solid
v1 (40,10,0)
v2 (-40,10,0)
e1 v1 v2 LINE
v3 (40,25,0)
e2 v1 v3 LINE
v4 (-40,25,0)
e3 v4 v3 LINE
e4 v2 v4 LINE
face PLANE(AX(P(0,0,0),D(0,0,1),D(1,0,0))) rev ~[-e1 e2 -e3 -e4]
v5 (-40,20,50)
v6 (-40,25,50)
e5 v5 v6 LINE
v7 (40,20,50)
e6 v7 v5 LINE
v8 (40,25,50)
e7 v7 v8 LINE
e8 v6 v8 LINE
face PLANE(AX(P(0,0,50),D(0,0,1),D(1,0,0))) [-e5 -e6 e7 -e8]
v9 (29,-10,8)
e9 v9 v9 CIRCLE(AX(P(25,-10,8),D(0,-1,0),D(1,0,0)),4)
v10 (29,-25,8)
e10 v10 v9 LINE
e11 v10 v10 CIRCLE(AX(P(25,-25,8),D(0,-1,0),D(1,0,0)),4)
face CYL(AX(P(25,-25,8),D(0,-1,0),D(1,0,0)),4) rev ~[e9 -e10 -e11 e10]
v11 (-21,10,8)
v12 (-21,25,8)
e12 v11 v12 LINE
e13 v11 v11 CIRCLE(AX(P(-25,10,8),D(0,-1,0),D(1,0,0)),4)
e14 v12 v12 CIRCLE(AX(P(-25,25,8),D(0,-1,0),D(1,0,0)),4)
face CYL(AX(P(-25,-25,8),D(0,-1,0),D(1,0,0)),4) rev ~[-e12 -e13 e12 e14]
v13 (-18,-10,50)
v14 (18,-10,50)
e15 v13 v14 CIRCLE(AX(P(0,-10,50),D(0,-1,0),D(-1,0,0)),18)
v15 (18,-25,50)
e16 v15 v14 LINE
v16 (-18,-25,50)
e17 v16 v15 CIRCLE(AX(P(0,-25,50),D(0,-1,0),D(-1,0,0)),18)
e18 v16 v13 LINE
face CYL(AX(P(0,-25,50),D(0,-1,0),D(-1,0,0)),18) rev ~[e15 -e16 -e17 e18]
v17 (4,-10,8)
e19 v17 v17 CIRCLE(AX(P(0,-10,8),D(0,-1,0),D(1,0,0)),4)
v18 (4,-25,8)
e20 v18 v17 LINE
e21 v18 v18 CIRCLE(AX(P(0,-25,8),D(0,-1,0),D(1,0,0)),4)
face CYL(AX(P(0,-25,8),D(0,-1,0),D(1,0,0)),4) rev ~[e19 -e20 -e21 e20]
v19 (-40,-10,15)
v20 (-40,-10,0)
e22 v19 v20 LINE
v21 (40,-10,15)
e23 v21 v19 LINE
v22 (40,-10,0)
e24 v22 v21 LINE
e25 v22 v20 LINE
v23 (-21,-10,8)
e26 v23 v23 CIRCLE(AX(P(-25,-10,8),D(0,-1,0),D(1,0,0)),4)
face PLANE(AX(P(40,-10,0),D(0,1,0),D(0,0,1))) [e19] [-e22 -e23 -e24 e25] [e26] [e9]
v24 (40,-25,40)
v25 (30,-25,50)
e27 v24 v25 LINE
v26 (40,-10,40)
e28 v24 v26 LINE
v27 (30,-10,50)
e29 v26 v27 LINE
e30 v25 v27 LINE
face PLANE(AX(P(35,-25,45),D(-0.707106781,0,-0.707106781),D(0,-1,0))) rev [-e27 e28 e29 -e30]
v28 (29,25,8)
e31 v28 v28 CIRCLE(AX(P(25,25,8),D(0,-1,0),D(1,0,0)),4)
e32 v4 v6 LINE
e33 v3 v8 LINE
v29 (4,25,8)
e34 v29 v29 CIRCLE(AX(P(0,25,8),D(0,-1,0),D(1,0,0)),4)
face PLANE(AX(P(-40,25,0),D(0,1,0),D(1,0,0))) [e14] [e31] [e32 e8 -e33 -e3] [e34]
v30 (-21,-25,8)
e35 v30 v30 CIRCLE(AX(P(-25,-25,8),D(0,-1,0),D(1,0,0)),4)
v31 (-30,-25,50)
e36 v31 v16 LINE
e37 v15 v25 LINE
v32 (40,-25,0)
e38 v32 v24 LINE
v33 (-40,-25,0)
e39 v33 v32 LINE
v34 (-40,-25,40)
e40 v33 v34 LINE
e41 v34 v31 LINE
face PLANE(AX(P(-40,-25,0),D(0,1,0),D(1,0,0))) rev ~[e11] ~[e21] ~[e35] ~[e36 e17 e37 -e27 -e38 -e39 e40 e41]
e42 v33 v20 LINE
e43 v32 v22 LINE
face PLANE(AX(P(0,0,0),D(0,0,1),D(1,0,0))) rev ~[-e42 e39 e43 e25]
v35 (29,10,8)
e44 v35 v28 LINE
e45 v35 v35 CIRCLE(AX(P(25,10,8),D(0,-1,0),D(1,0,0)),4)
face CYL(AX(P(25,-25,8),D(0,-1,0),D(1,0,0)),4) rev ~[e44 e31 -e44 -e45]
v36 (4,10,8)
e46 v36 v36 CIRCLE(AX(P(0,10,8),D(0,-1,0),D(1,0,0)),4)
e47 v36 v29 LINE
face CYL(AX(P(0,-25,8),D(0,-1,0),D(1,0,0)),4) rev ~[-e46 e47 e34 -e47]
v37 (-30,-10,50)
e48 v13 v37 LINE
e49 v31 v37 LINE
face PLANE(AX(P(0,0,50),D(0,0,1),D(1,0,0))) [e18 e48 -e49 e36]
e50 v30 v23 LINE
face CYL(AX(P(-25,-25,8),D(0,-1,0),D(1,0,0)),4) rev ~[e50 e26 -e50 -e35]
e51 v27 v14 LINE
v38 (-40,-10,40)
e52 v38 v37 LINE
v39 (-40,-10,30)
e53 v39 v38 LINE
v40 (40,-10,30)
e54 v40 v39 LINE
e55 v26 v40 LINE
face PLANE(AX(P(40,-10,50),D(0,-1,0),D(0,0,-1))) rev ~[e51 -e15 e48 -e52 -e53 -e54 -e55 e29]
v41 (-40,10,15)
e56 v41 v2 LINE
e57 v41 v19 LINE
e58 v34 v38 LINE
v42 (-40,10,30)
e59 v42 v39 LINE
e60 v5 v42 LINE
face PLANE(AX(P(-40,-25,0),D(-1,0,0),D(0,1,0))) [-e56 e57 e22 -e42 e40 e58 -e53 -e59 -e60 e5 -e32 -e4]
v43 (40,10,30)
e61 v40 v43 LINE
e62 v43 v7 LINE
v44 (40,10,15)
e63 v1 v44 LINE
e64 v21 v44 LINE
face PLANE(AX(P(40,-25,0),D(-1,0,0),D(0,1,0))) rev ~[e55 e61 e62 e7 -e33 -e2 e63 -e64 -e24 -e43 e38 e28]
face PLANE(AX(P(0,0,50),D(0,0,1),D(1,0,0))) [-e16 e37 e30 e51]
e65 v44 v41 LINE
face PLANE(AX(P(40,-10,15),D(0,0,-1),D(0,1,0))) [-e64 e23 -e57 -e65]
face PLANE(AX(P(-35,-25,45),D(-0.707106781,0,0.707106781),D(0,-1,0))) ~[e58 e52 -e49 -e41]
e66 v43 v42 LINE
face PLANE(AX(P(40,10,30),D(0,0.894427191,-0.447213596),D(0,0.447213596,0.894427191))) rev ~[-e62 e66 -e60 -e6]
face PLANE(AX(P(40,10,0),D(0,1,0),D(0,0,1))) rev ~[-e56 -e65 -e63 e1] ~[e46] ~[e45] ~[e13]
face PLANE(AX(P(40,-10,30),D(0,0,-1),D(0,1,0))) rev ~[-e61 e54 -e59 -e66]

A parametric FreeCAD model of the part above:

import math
import FreeCAD as App
import Part
import Sketcher


def edges_at(feature, points):
    """Names of the edges that pass closest to the given points."""
    edges = feature.Shape.Edges
    near = lambda p: min(range(len(edges)), key=lambda i: edges[i].distToShape(Part.Vertex(*p))[0])
    return sorted({f"Edge{near(p) + 1}" for p in points})

doc = App.newDocument("Part")
body = doc.addObject("PartDesign::Body", "Body")

sketch1 = body.newObject("Sketcher::SketchObject", "Sketch")
sketch1.AttachmentSupport = (doc.getObject("XY_Plane"), [""])
sketch1.MapMode = "FlatFace"
sketch1.addGeometry(Part.LineSegment(App.Vector(-40, 25, 0), App.Vector(-40, -25, 0)), False)
sketch1.addGeometry(Part.LineSegment(App.Vector(-40, -25, 0), App.Vector(40, -25, 0)), False)
sketch1.addGeometry(Part.LineSegment(App.Vector(40, -25, 0), App.Vector(40, 25, 0)), False)
sketch1.addGeometry(Part.LineSegment(App.Vector(40, 25, 0), App.Vector(-40, 25, 0)), False)
sketch1.addConstraint(Sketcher.Constraint("Coincident", 0, 2, 1, 1))
sketch1.addConstraint(Sketcher.Constraint("Coincident", 1, 2, 2, 1))
sketch1.addConstraint(Sketcher.Constraint("Coincident", 2, 2, 3, 1))
sketch1.addConstraint(Sketcher.Constraint("Coincident", 3, 2, 0, 1))
sketch1.addConstraint(Sketcher.Constraint("Vertical", 0))
sketch1.addConstraint(Sketcher.Constraint("Horizontal", 1))
sketch1.addConstraint(Sketcher.Constraint("Vertical", 2))
sketch1.addConstraint(Sketcher.Constraint("Horizontal", 3))
sketch1.addConstraint(Sketcher.Constraint("Symmetric", 0, 2, 2, 2, -1, 1))
sketch1.addConstraint(Sketcher.Constraint("DistanceX", 1, 1, 1, 2, 80.0))
sketch1.addConstraint(Sketcher.Constraint("DistanceY", 0, 2, 0, 1, 50.0))
pad1 = body.newObject("PartDesign::Pad", "Pad")
pad1.Profile = sketch1
pad1.Length = 50

sketch2 = body.newObject("Sketcher::SketchObject", "Sketch001")
sketch2.AttachmentSupport = (doc.getObject("YZ_Plane"), [""])
sketch2.MapMode = "FlatFace"
sketch2.AttachmentOffset = App.Placement(App.Vector(0, 0, 40), App.Rotation())
sketch2.addGeometry(Part.LineSegment(App.Vector(-10, 15, 0), App.Vector(-10, 0, 0)), False)
sketch2.addGeometry(Part.LineSegment(App.Vector(-10, 0, 0), App.Vector(10, 0, 0)), False)
sketch2.addGeometry(Part.LineSegment(App.Vector(10, 0, 0), App.Vector(10, 15, 0)), False)
sketch2.addGeometry(Part.LineSegment(App.Vector(10, 15, 0), App.Vector(-10, 15, 0)), False)
sketch2.addConstraint(Sketcher.Constraint("Coincident", 0, 2, 1, 1))
sketch2.addConstraint(Sketcher.Constraint("Coincident", 1, 2, 2, 1))
sketch2.addConstraint(Sketcher.Constraint("Coincident", 2, 2, 3, 1))
sketch2.addConstraint(Sketcher.Constraint("Coincident", 3, 2, 0, 1))
sketch2.addConstraint(Sketcher.Constraint("Vertical", 0))
sketch2.addConstraint(Sketcher.Constraint("Horizontal", 1))
sketch2.addConstraint(Sketcher.Constraint("Vertical", 2))
sketch2.addConstraint(Sketcher.Constraint("Horizontal", 3))
sketch2.addConstraint(Sketcher.Constraint("Symmetric", 0, 2, 1, 2, -1, 1))
sketch2.addConstraint(Sketcher.Constraint("DistanceX", 1, 1, 1, 2, 20.0))
sketch2.addConstraint(Sketcher.Constraint("DistanceY", 0, 2, 0, 1, 15.0))
pocket1 = body.newObject("PartDesign::Pocket", "Pocket")
pocket1.Profile = sketch2
pocket1.Type = "ThroughAll"

sketch3 = body.newObject("Sketcher::SketchObject", "Sketch002")
sketch3.AttachmentSupport = (doc.getObject("YZ_Plane"), [""])
sketch3.MapMode = "FlatFace"
sketch3.AttachmentOffset = App.Placement(App.Vector(0, 0, 40), App.Rotation())
sketch3.addGeometry(Part.LineSegment(App.Vector(20, 50, 0), App.Vector(-10, 50, 0)), False)
sketch3.addGeometry(Part.LineSegment(App.Vector(-10, 50, 0), App.Vector(-10, 30, 0)), False)
sketch3.addGeometry(Part.LineSegment(App.Vector(-10, 30, 0), App.Vector(10, 30, 0)), False)
sketch3.addGeometry(Part.LineSegment(App.Vector(10, 30, 0), App.Vector(20, 50, 0)), False)
sketch3.addConstraint(Sketcher.Constraint("Coincident", 0, 2, 1, 1))
sketch3.addConstraint(Sketcher.Constraint("Coincident", 1, 2, 2, 1))
sketch3.addConstraint(Sketcher.Constraint("Coincident", 2, 2, 3, 1))
sketch3.addConstraint(Sketcher.Constraint("Coincident", 3, 2, 0, 1))
sketch3.addConstraint(Sketcher.Constraint("Horizontal", 0))
sketch3.addConstraint(Sketcher.Constraint("Vertical", 1))
sketch3.addConstraint(Sketcher.Constraint("Horizontal", 2))
sketch3.addConstraint(Sketcher.Constraint("Equal", 2, 1))
sketch3.addConstraint(Sketcher.Constraint("DistanceX", 0, 2, 0, 1, 30.0))
sketch3.addConstraint(Sketcher.Constraint("DistanceX", 2, 1, 2, 2, 20.0))
sketch3.addConstraint(Sketcher.Constraint("DistanceX", 0, 2, -1, 1, 10.0))
sketch3.addConstraint(Sketcher.Constraint("DistanceY", -1, 1, 0, 2, 50.0))
pocket2 = body.newObject("PartDesign::Pocket", "Pocket001")
pocket2.Profile = sketch3
pocket2.Type = "ThroughAll"

sketch4 = body.newObject("Sketcher::SketchObject", "Sketch003")
sketch4.AttachmentSupport = (doc.getObject("XZ_Plane"), [""])
sketch4.MapMode = "FlatFace"
sketch4.AttachmentOffset = App.Placement(App.Vector(0, 0, 25), App.Rotation())
sketch4.addGeometry(Part.ArcOfCircle(Part.Circle(App.Vector(0, 50, 0), App.Vector(0, 0, 1), 18), math.radians(180), math.radians(360)), False)
sketch4.addGeometry(Part.LineSegment(App.Vector(18, 50, 0), App.Vector(-18, 50, 0)), False)
sketch4.addConstraint(Sketcher.Constraint("Coincident", 0, 1, 1, 2))
sketch4.addConstraint(Sketcher.Constraint("Coincident", 1, 1, 0, 2))
sketch4.addConstraint(Sketcher.Constraint("Horizontal", 1))
sketch4.addConstraint(Sketcher.Constraint("PointOnObject", 0, 3, -2))
sketch4.addConstraint(Sketcher.Constraint("Radius", 0, 18.0))
sketch4.addConstraint(Sketcher.Constraint("DistanceY", -1, 1, 0, 3, 50.0))
sketch4.addConstraint(Sketcher.Constraint("DistanceY", -1, 1, 0, 1, 50.0))
pocket3 = body.newObject("PartDesign::Pocket", "Pocket002")
pocket3.Profile = sketch4
pocket3.Length = 15
doc.recompute()

chamfer = body.newObject("PartDesign::Chamfer", "Chamfer")
chamfer.Base = (pocket3, edges_at(pocket3, [(40, -17.5, 50), (-40, -17.5, 50)]))
chamfer.Size = 10

sketch5 = body.newObject("Sketcher::SketchObject", "Sketch004")
sketch5.AttachmentSupport = (doc.getObject("XZ_Plane"), [""])
sketch5.MapMode = "FlatFace"
sketch5.AttachmentOffset = App.Placement(App.Vector(0, 0, 25), App.Rotation())
sketch5.addGeometry(Part.Circle(App.Vector(-25, 8, 0), App.Vector(0, 0, 1), 4), False)
sketch5.addGeometry(Part.Circle(App.Vector(0, 8, 0), App.Vector(0, 0, 1), 4), False)
sketch5.addGeometry(Part.Circle(App.Vector(25, 8, 0), App.Vector(0, 0, 1), 4), False)
sketch5.addConstraint(Sketcher.Constraint("Equal", 0, 1))
sketch5.addConstraint(Sketcher.Constraint("Equal", 1, 2))
sketch5.addConstraint(Sketcher.Constraint("Symmetric", 0, 3, 2, 3, -2))
sketch5.addConstraint(Sketcher.Constraint("PointOnObject", 1, 3, -2))
sketch5.addConstraint(Sketcher.Constraint("Horizontal", 0, 3, 1, 3))
sketch5.addConstraint(Sketcher.Constraint("Diameter", 0, 8.0))
sketch5.addConstraint(Sketcher.Constraint("DistanceX", 0, 3, -1, 1, 25.0))
sketch5.addConstraint(Sketcher.Constraint("DistanceY", -1, 1, 0, 3, 8.0))
pocket4 = body.newObject("PartDesign::Pocket", "Pocket003")
pocket4.Profile = sketch5
pocket4.Type = "ThroughAll"

doc.recompute()
